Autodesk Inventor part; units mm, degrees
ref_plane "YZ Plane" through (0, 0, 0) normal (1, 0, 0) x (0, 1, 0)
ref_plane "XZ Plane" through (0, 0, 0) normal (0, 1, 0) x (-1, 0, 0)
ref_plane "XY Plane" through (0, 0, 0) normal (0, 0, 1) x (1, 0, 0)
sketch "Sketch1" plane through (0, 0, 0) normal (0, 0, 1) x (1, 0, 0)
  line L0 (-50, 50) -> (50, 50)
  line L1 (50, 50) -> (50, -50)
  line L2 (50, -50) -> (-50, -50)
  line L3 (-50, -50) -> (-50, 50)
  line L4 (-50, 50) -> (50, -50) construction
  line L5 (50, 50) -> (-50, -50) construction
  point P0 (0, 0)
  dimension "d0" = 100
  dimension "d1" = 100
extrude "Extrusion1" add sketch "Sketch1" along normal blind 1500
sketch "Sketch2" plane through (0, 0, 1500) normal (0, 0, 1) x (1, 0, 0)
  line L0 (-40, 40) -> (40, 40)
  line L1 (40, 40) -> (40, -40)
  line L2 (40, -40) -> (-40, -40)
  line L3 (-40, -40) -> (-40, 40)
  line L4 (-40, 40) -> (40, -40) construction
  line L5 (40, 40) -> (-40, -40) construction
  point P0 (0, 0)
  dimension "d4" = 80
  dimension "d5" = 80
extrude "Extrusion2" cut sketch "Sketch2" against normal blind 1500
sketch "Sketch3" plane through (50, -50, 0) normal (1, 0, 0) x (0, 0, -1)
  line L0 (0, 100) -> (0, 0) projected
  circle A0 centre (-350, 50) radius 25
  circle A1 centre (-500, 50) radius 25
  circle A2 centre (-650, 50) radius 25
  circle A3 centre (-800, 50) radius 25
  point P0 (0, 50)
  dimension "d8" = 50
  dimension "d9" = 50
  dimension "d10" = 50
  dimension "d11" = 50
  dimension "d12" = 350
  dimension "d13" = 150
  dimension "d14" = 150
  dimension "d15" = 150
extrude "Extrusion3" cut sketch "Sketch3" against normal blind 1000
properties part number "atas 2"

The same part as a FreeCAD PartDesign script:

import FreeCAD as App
import Part
import Sketcher

doc = App.newDocument("Part")
params = doc.addObject("Spreadsheet::Sheet", "Params")
for row, (alias, value) in enumerate([
    ("sketch1_width", "100 mm"),
    ("pad1_length", "1500 mm"),
    ("sketch2_width", "80 mm"),
    ("pocket1_length", "1500 mm"),
    ("sketch3_diameter", "50 mm"),
    ("pocket2_length", "1000 mm"),
], start=1):
    params.set(f"A{row}", alias)
    params.set(f"B{row}", "=" + value)
    params.setAlias(f"B{row}", alias)

body = doc.addObject("PartDesign::Body", "Body")

# Sketch on XY plane
sketch1 = body.newObject("Sketcher::SketchObject", "Sketch")
sketch1.AttachmentSupport = (doc.getObject("XY_Plane"), [""])
sketch1.MapMode = "FlatFace"
sketch1.addGeometry(Part.LineSegment(App.Vector(50, 50, 0), App.Vector(-50, 50, 0)), False)
sketch1.addGeometry(Part.LineSegment(App.Vector(-50, 50, 0), App.Vector(-50, -50, 0)), False)
sketch1.addGeometry(Part.LineSegment(App.Vector(-50, -50, 0), App.Vector(50, -50, 0)), False)
sketch1.addGeometry(Part.LineSegment(App.Vector(50, -50, 0), App.Vector(50, 50, 0)), False)
sketch1.addConstraint(Sketcher.Constraint("Coincident", 0, 2, 1, 1))
sketch1.addConstraint(Sketcher.Constraint("Coincident", 1, 2, 2, 1))
sketch1.addConstraint(Sketcher.Constraint("Coincident", 2, 2, 3, 1))
sketch1.addConstraint(Sketcher.Constraint("Coincident", 3, 2, 0, 1))
sketch1.addConstraint(Sketcher.Constraint("Horizontal", 0))
sketch1.addConstraint(Sketcher.Constraint("Vertical", 1))
sketch1.addConstraint(Sketcher.Constraint("Horizontal", 2))
sketch1.addConstraint(Sketcher.Constraint("Vertical", 3))
sketch1.addConstraint(Sketcher.Constraint("Symmetric", 0, 2, 2, 2, -1, 1))
sketch1.addConstraint(Sketcher.Constraint("Equal", 2, 1))
sketch1.addConstraint(Sketcher.Constraint("DistanceX", 0, 2, 0, 1, 100.0))
sketch1.setExpression("Constraints[10]", "Params.sketch1_width")
pad1 = body.newObject("PartDesign::Pad", "Pad")
pad1.Profile = sketch1
pad1.setExpression("Length", "Params.pad1_length")

# Sketch on XY plane
sketch2 = body.newObject("Sketcher::SketchObject", "Sketch001")
sketch2.AttachmentSupport = (doc.getObject("XY_Plane"), [""])
sketch2.MapMode = "FlatFace"
sketch2.AttachmentOffset = App.Placement(App.Vector(0, 0, 1500), App.Rotation())
sketch2.addGeometry(Part.LineSegment(App.Vector(40, 40, 0), App.Vector(-40, 40, 0)), False)
sketch2.addGeometry(Part.LineSegment(App.Vector(-40, 40, 0), App.Vector(-40, -40, 0)), False)
sketch2.addGeometry(Part.LineSegment(App.Vector(-40, -40, 0), App.Vector(40, -40, 0)), False)
sketch2.addGeometry(Part.LineSegment(App.Vector(40, -40, 0), App.Vector(40, 40, 0)), False)
sketch2.addConstraint(Sketcher.Constraint("Coincident", 0, 2, 1, 1))
sketch2.addConstraint(Sketcher.Constraint("Coincident", 1, 2, 2, 1))
sketch2.addConstraint(Sketcher.Constraint("Coincident", 2, 2, 3, 1))
sketch2.addConstraint(Sketcher.Constraint("Coincident", 3, 2, 0, 1))
sketch2.addConstraint(Sketcher.Constraint("Horizontal", 0))
sketch2.addConstraint(Sketcher.Constraint("Vertical", 1))
sketch2.addConstraint(Sketcher.Constraint("Horizontal", 2))
sketch2.addConstraint(Sketcher.Constraint("Vertical", 3))
sketch2.addConstraint(Sketcher.Constraint("Symmetric", 0, 2, 2, 2, -1, 1))
sketch2.addConstraint(Sketcher.Constraint("Equal", 2, 1))
sketch2.addConstraint(Sketcher.Constraint("DistanceX", 0, 2, 0, 1, 80.0))
sketch2.setExpression("Constraints[10]", "Params.sketch2_width")
pocket1 = body.newObject("PartDesign::Pocket", "Pocket")
pocket1.Profile = sketch2
pocket1.setExpression("Length", "Params.pocket1_length")

# Sketch on YZ plane
sketch3 = body.newObject("Sketcher::SketchObject", "Sketch002")
sketch3.AttachmentSupport = (doc.getObject("YZ_Plane"), [""])
sketch3.MapMode = "FlatFace"
sketch3.AttachmentOffset = App.Placement(App.Vector(0, 0, 50), App.Rotation())
sketch3.addGeometry(Part.Circle(App.Vector(0, 350, 0), App.Vector(0, 0, 1), 25), False)
sketch3.addGeometry(Part.Circle(App.Vector(0, 500, 0), App.Vector(0, 0, 1), 25), False)
sketch3.addGeometry(Part.Circle(App.Vector(0, 650, 0), App.Vector(0, 0, 1), 25), False)
sketch3.addGeometry(Part.Circle(App.Vector(0, 800, 0), App.Vector(0, 0, 1), 25), False)
sketch3.addConstraint(Sketcher.Constraint("Equal", 0, 1))
sketch3.addConstraint(Sketcher.Constraint("Equal", 1, 2))
sketch3.addConstraint(Sketcher.Constraint("Equal", 2, 3))
sketch3.addConstraint(Sketcher.Constraint("PointOnObject", 0, 3, -2))
sketch3.addConstraint(Sketcher.Constraint("PointOnObject", 1, 3, -2))
sketch3.addConstraint(Sketcher.Constraint("PointOnObject", 2, 3, -2))
sketch3.addConstraint(Sketcher.Constraint("PointOnObject", 3, 3, -2))
sketch3.addConstraint(Sketcher.Constraint("Diameter", 0, 50.0))
sketch3.addConstraint(Sketcher.Constraint("DistanceY", -1, 1, 0, 3, 350.0))
sketch3.addConstraint(Sketcher.Constraint("DistanceY", 0, 3, 1, 3, 150.0))
sketch3.addConstraint(Sketcher.Constraint("DistanceY", 1, 3, 2, 3, 150.0))
sketch3.addConstraint(Sketcher.Constraint("DistanceY", 2, 3, 3, 3, 150.0))
sketch3.setExpression("Constraints[7]", "Params.sketch3_diameter")
pocket2 = body.newObject("PartDesign::Pocket", "Pocket001")
pocket2.Profile = sketch3
pocket2.setExpression("Length", "Params.pocket2_length")

doc.recompute()
